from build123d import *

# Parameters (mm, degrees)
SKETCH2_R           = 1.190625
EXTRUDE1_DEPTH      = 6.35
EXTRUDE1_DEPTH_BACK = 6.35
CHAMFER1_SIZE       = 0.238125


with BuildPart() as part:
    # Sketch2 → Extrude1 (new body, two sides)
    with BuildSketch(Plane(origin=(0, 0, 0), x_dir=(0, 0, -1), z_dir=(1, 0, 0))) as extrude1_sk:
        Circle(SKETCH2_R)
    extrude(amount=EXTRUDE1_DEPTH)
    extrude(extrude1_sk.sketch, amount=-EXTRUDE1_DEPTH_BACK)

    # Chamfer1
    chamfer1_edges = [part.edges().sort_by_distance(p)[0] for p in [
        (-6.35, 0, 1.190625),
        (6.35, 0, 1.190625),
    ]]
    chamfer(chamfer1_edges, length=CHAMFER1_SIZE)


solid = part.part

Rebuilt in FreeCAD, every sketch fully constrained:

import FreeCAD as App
import Part
import Sketcher

V = App.Vector
Q = App.Units.Quantity


def edges_at(feature, points):
    """Names of the edges that pass closest to the given points."""
    edges = feature.Shape.Edges
    near = lambda p: min(range(len(edges)), key=lambda i: edges[i].distToShape(Part.Vertex(*p))[0])
    return sorted({f"Edge{near(p) + 1}" for p in points})

doc = App.newDocument("Part")
params = doc.addObject("Spreadsheet::Sheet", "Params")
for row, (alias, value) in enumerate([
    ("sketch1_diameter", "0.09375 in"),
    ("pad1_length", "0.25 in"),
    ("pad1_length2", "0.25 in"),
    ("chamfer_size", "0.238125 mm"),
], start=1):
    params.set(f"A{row}", alias)
    params.set(f"B{row}", "=" + value)
    params.setAlias(f"B{row}", alias)

body = doc.addObject("PartDesign::Body", "Body")

# Sketch on YZ plane
sketch1 = body.newObject("Sketcher::SketchObject", "Sketch")
sketch1.AttachmentSupport = (doc.getObject("YZ_Plane"), [""])
sketch1.MapMode = "FlatFace"
sketch1.addGeometry(Part.Circle(V(0, 0, 0), V(0, 0, 1), 1.2), False)
sketch1.addConstraint([
    Sketcher.Constraint("Coincident", 0, 3, -1, 1),
    Sketcher.Constraint("Diameter", 0, Q("0.09375 in")),
])
sketch1.setExpression("Constraints[1]", "Params.sketch1_diameter")
pad1 = body.newObject("PartDesign::Pad", "Pad")
pad1.Profile = sketch1
pad1.Type = "TwoLengths"
pad1.setExpression("Length", "Params.pad1_length")
pad1.setExpression("Length2", "Params.pad1_length2")
doc.recompute()

chamfer = body.newObject("PartDesign::Chamfer", "Chamfer")
chamfer.Base = (pad1, edges_at(pad1, [(-6.35, 0, 1.191), (6.35, 0, 1.191)]))
chamfer.setExpression("Size", "Params.chamfer_size")

doc.recompute()
